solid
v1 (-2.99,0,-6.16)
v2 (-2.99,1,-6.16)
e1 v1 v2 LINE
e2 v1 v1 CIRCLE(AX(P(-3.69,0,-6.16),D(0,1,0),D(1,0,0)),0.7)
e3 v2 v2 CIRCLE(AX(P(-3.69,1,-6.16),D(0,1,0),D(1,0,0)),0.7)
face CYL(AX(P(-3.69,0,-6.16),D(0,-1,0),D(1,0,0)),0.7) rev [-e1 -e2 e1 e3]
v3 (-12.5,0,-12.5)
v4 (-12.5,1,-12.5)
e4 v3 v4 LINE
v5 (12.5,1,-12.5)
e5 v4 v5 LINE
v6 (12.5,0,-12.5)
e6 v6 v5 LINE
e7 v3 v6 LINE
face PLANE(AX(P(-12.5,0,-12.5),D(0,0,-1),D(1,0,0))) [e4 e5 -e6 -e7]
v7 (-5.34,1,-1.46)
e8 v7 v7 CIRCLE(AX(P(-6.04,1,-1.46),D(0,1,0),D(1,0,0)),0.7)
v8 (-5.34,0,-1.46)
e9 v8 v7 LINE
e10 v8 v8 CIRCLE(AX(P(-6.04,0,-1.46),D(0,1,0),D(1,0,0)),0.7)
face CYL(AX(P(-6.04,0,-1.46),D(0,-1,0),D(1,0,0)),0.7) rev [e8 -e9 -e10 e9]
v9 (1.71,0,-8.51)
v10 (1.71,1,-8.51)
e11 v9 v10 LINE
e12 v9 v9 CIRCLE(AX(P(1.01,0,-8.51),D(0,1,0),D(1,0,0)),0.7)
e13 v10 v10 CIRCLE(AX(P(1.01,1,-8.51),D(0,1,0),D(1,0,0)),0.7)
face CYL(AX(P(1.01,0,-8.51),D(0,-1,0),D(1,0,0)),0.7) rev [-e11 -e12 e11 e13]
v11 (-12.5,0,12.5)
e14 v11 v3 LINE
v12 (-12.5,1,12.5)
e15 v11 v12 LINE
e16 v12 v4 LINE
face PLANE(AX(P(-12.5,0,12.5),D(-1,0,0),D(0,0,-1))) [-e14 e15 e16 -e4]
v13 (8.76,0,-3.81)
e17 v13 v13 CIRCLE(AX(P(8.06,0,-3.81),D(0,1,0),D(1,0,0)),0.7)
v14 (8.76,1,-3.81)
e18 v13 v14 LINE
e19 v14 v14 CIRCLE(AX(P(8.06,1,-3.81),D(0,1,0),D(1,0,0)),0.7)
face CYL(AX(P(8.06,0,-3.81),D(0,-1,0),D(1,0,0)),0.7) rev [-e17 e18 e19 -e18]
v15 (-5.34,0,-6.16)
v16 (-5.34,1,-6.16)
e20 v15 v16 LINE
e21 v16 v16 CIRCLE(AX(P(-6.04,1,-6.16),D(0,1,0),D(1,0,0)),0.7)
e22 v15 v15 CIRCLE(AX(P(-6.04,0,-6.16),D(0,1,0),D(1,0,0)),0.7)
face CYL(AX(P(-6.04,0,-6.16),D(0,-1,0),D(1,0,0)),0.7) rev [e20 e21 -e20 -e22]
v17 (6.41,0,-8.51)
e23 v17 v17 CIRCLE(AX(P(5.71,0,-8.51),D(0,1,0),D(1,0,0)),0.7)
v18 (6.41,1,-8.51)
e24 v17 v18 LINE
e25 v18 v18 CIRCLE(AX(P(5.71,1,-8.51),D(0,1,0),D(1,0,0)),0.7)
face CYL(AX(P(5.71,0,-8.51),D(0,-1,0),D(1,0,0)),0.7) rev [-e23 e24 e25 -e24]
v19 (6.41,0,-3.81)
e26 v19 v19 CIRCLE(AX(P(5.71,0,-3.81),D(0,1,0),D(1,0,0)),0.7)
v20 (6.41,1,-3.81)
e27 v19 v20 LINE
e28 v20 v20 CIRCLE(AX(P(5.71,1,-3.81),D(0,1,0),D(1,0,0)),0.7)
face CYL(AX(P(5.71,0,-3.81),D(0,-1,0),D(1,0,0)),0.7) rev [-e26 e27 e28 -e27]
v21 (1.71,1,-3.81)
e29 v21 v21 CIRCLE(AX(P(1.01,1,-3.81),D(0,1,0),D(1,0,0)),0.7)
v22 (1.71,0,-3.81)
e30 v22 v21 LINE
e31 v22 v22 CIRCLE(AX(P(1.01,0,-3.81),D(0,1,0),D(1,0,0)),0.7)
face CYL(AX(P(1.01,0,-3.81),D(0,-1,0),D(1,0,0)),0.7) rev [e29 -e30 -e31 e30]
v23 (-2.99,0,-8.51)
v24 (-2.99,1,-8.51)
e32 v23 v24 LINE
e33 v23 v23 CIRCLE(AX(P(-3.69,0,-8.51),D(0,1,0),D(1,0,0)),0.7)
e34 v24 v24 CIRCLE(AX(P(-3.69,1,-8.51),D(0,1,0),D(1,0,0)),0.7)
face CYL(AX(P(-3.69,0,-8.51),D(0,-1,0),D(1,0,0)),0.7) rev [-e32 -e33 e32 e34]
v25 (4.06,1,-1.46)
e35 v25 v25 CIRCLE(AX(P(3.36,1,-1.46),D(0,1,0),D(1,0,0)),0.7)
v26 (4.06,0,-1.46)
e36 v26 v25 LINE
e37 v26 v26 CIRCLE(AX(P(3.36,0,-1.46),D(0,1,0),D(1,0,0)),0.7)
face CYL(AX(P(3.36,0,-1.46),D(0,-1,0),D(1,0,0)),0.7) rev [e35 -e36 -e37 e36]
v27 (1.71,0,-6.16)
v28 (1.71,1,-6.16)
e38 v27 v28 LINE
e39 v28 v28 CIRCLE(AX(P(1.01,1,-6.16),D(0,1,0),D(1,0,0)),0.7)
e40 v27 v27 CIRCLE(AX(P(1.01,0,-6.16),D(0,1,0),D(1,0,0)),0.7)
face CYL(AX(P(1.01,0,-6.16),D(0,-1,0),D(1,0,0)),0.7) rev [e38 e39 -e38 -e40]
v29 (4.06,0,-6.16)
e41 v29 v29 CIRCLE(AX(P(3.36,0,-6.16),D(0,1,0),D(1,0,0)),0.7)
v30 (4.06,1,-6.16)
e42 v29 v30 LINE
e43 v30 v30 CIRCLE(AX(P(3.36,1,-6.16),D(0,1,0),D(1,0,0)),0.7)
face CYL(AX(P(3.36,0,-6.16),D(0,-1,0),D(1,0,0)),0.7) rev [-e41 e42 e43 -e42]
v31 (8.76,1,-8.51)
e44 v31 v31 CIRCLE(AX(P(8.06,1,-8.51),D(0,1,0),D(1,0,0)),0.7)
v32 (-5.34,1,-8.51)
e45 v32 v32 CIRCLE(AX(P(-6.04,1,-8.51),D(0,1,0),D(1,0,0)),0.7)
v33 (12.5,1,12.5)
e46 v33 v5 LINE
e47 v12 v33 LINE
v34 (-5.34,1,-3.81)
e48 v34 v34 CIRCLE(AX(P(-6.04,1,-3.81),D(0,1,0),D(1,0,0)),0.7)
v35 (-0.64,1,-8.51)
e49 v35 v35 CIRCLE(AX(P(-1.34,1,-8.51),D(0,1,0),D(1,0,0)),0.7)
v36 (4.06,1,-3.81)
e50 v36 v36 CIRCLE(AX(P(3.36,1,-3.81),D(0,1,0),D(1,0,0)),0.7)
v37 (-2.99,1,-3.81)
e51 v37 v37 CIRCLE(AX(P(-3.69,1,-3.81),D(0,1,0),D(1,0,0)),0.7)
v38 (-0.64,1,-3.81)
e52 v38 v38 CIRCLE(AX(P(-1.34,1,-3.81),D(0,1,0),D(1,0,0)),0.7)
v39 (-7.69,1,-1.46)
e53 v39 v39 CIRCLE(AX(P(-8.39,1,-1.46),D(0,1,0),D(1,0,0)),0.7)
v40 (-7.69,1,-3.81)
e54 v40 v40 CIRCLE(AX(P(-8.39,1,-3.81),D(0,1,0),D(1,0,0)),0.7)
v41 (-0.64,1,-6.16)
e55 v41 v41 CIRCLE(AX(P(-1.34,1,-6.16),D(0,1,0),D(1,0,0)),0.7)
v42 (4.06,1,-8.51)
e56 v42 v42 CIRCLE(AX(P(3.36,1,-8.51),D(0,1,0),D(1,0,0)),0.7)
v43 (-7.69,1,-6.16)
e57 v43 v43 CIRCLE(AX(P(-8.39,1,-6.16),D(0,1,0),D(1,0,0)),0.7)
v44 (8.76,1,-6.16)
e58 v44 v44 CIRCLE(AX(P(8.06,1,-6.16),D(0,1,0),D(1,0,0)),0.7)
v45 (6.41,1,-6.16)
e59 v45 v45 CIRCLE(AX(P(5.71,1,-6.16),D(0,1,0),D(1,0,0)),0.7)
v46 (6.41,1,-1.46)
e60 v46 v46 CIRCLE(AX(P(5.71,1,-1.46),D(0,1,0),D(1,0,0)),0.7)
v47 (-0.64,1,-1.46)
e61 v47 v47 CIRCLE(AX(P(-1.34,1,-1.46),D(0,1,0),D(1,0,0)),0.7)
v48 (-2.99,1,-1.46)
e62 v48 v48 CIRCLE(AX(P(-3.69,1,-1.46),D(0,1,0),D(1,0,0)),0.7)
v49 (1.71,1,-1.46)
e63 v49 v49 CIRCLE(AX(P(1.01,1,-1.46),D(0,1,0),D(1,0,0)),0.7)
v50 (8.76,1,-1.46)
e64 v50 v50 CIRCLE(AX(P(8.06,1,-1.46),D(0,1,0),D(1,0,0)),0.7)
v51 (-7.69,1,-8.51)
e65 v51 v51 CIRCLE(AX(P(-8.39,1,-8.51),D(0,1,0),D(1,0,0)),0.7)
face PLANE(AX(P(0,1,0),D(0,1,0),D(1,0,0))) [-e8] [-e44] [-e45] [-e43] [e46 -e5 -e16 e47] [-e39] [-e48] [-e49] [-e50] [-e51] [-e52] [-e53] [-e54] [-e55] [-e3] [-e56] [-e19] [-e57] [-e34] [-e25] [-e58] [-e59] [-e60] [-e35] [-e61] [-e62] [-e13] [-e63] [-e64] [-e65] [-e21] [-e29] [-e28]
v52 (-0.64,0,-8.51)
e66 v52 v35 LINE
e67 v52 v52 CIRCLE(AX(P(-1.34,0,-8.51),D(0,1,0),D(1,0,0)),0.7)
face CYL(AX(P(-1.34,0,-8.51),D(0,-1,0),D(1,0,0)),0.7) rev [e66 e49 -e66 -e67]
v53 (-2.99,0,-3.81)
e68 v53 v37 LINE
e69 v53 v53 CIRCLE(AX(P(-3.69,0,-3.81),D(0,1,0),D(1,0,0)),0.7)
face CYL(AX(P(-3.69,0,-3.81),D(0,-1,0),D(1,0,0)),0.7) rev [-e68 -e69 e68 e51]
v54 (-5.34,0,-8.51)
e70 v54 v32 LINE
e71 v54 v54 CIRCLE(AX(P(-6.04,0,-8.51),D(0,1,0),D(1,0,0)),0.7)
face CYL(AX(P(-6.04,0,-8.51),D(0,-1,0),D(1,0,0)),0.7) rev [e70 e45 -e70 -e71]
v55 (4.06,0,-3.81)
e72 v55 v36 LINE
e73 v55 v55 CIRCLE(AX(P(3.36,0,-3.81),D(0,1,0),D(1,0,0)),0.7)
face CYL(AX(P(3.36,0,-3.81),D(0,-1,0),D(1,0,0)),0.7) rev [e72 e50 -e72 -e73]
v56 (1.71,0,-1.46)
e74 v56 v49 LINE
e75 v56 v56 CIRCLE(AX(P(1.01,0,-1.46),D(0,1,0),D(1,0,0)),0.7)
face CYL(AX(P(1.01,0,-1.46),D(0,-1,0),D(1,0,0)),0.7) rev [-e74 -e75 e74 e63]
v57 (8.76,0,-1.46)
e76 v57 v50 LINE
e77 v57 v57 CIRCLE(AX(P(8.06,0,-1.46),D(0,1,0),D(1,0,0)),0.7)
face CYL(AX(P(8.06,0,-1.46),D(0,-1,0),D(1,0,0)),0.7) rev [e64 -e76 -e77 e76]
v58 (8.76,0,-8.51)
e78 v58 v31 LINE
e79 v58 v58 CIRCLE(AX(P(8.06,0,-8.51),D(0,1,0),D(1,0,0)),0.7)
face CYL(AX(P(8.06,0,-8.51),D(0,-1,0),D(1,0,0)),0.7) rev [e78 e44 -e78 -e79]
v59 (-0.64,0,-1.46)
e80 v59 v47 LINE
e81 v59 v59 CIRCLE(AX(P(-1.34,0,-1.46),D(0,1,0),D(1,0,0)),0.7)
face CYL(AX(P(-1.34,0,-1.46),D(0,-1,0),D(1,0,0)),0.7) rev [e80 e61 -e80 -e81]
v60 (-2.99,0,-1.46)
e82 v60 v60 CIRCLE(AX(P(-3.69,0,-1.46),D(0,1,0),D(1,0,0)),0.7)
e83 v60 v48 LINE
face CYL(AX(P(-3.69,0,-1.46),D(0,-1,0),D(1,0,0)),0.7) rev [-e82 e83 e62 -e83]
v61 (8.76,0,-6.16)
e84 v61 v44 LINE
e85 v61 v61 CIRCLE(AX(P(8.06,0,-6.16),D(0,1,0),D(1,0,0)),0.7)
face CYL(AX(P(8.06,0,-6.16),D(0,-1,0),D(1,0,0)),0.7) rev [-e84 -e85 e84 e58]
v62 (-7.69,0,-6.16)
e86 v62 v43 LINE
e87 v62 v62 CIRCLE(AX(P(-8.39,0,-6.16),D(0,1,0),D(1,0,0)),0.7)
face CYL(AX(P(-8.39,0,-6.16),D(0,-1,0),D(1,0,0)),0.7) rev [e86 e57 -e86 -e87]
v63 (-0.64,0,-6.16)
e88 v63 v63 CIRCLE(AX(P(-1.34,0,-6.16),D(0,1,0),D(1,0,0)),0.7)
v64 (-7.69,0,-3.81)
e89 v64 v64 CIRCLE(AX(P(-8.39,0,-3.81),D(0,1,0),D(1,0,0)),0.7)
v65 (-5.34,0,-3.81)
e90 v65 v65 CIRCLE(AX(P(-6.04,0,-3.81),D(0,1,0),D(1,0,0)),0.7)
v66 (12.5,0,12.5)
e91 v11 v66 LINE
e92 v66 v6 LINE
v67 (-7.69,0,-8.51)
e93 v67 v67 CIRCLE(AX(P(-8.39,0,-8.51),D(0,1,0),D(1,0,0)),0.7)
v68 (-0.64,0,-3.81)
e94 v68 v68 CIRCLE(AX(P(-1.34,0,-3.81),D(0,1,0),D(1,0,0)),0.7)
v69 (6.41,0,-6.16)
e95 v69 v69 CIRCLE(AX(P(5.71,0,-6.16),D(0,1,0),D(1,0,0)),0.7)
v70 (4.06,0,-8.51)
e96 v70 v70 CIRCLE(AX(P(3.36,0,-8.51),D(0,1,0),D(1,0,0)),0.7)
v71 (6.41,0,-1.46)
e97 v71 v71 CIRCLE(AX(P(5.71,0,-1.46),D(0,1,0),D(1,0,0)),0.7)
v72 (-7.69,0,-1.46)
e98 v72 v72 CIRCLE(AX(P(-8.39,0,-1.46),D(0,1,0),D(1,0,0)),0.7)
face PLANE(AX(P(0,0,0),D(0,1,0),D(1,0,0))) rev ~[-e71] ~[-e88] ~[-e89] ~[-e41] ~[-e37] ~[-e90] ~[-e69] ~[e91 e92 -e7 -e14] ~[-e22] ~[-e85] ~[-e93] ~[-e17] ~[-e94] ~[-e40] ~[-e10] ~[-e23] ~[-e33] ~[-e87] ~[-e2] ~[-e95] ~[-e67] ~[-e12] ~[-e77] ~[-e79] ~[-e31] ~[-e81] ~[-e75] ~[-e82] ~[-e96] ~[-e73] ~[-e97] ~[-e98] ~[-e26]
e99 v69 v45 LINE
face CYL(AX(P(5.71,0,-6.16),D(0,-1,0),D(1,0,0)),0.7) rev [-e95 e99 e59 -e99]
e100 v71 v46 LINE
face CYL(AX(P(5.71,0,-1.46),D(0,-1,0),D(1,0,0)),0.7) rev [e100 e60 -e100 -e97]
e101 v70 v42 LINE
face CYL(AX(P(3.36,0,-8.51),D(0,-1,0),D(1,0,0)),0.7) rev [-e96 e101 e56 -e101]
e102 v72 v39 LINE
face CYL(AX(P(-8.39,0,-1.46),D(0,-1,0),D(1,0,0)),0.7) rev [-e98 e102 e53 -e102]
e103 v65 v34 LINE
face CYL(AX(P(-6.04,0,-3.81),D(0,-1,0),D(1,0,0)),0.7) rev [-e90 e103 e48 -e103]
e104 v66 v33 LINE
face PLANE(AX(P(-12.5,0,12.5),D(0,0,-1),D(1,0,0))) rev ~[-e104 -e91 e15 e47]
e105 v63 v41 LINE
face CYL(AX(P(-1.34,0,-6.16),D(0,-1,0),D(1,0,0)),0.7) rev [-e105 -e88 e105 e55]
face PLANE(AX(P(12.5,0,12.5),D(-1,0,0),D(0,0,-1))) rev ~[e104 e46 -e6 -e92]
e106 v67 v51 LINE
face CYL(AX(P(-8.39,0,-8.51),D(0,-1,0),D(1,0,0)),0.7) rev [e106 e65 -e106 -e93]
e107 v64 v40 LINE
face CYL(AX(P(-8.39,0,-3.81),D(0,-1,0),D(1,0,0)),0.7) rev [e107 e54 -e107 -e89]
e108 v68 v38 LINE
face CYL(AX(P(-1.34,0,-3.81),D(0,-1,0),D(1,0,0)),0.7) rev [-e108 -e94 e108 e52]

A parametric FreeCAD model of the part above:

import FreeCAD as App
import Part
import Sketcher
Q = App.Units.Quantity


def add_polygon(sketch, points):
    """Adds a closed chain of lines whose ends are joined by coincident constraints."""
    first, n = sketch.GeometryCount, len(points)
    for a, b in zip(points, points[1:] + points[:1]):
        sketch.addGeometry(Part.LineSegment(App.Vector(*a, 0), App.Vector(*b, 0)), False)
    for i in range(n):
        sketch.addConstraint(Sketcher.Constraint("Coincident", first + i, 2, first + (i + 1) % n, 1))

doc = App.newDocument("Part")
body = doc.addObject("PartDesign::Body", "Body")

# Sketch on XZ plane
sketch1 = body.newObject("Sketcher::SketchObject", "Sketch")
sketch1.AttachmentSupport = (doc.getObject("XZ_Plane"), [""])
sketch1.MapMode = "FlatFace"
add_polygon(sketch1, [(-12.5, -12.5), (-12.5, 12.5), (12.5, 12.5), (12.5, -12.5)])  # lines 0-3
sketch1.addGeometry(Part.Circle(App.Vector(-8.4, -1.5, 0), App.Vector(0, 0, 1), 0.7), False)  # 4
sketch1.addGeometry(Part.Circle(App.Vector(-6, -1.5, 0), App.Vector(0, 0, 1), 0.7), False)  # 5
sketch1.addGeometry(Part.Circle(App.Vector(-3.7, -1.5, 0), App.Vector(0, 0, 1), 0.7), False)  # 6
sketch1.addGeometry(Part.Circle(App.Vector(-1.3, -1.5, 0), App.Vector(0, 0, 1), 0.7), False)  # 7
sketch1.addGeometry(Part.Circle(App.Vector(-8.4, -3.8, 0), App.Vector(0, 0, 1), 0.7), False)  # 8
sketch1.addGeometry(Part.Circle(App.Vector(-6, -3.8, 0), App.Vector(0, 0, 1), 0.7), False)  # 9
sketch1.addGeometry(Part.Circle(App.Vector(-3.7, -3.8, 0), App.Vector(0, 0, 1), 0.7), False)  # 10
sketch1.addGeometry(Part.Circle(App.Vector(-1.3, -3.8, 0), App.Vector(0, 0, 1), 0.7), False)  # 11
sketch1.addGeometry(Part.Circle(App.Vector(1, -1.5, 0), App.Vector(0, 0, 1), 0.7), False)  # 12
sketch1.addGeometry(Part.Circle(App.Vector(3.4, -1.5, 0), App.Vector(0, 0, 1), 0.7), False)  # 13
sketch1.addGeometry(Part.Circle(App.Vector(5.7, -1.5, 0), App.Vector(0, 0, 1), 0.7), False)  # 14
sketch1.addGeometry(Part.Circle(App.Vector(8.1, -1.5, 0), App.Vector(0, 0, 1), 0.7), False)  # 15
sketch1.addGeometry(Part.Circle(App.Vector(1, -3.8, 0), App.Vector(0, 0, 1), 0.7), False)  # 16
sketch1.addGeometry(Part.Circle(App.Vector(3.4, -3.8, 0), App.Vector(0, 0, 1), 0.7), False)  # 17
sketch1.addGeometry(Part.Circle(App.Vector(5.7, -3.8, 0), App.Vector(0, 0, 1), 0.7), False)  # 18
sketch1.addGeometry(Part.Circle(App.Vector(8.1, -3.8, 0), App.Vector(0, 0, 1), 0.7), False)  # 19
sketch1.addGeometry(Part.Circle(App.Vector(-8.4, -6.2, 0), App.Vector(0, 0, 1), 0.7), False)  # 20
sketch1.addGeometry(Part.Circle(App.Vector(-6, -6.2, 0), App.Vector(0, 0, 1), 0.7), False)  # 21
sketch1.addGeometry(Part.Circle(App.Vector(-3.7, -6.2, 0), App.Vector(0, 0, 1), 0.7), False)  # 22
sketch1.addGeometry(Part.Circle(App.Vector(-1.3, -6.2, 0), App.Vector(0, 0, 1), 0.7), False)  # 23
sketch1.addGeometry(Part.Circle(App.Vector(-8.4, -8.5, 0), App.Vector(0, 0, 1), 0.7), False)  # 24
sketch1.addGeometry(Part.Circle(App.Vector(-6, -8.5, 0), App.Vector(0, 0, 1), 0.7), False)  # 25
sketch1.addGeometry(Part.Circle(App.Vector(-3.7, -8.5, 0), App.Vector(0, 0, 1), 0.7), False)  # 26
sketch1.addGeometry(Part.Circle(App.Vector(-1.3, -8.5, 0), App.Vector(0, 0, 1), 0.7), False)  # 27
sketch1.addGeometry(Part.Circle(App.Vector(1, -6.2, 0), App.Vector(0, 0, 1), 0.7), False)  # 28
sketch1.addGeometry(Part.Circle(App.Vector(3.4, -6.2, 0), App.Vector(0, 0, 1), 0.7), False)  # 29
sketch1.addGeometry(Part.Circle(App.Vector(5.7, -6.2, 0), App.Vector(0, 0, 1), 0.7), False)  # 30
sketch1.addGeometry(Part.Circle(App.Vector(8.1, -6.2, 0), App.Vector(0, 0, 1), 0.7), False)  # 31
sketch1.addGeometry(Part.Circle(App.Vector(1, -8.5, 0), App.Vector(0, 0, 1), 0.7), False)  # 32
sketch1.addGeometry(Part.Circle(App.Vector(3.4, -8.5, 0), App.Vector(0, 0, 1), 0.7), False)  # 33
sketch1.addGeometry(Part.Circle(App.Vector(5.7, -8.5, 0), App.Vector(0, 0, 1), 0.7), False)  # 34
sketch1.addGeometry(Part.Circle(App.Vector(8.1, -8.5, 0), App.Vector(0, 0, 1), 0.7), False)  # 35
sketch1.addConstraint(Sketcher.Constraint("Vertical", 0))
sketch1.addConstraint(Sketcher.Constraint("Horizontal", 1))
sketch1.addConstraint(Sketcher.Constraint("Vertical", 2))
sketch1.addConstraint(Sketcher.Constraint("Horizontal", 3))
sketch1.addConstraint(Sketcher.Constraint("Equal", 4, 5))
sketch1.addConstraint(Sketcher.Constraint("Equal", 5, 6))
sketch1.addConstraint(Sketcher.Constraint("Equal", 6, 7))
sketch1.addConstraint(Sketcher.Constraint("Equal", 7, 8))
sketch1.addConstraint(Sketcher.Constraint("Equal", 8, 9))
sketch1.addConstraint(Sketcher.Constraint("Equal", 9, 10))
sketch1.addConstraint(Sketcher.Constraint("Equal", 10, 11))
sketch1.addConstraint(Sketcher.Constraint("Equal", 11, 12))
sketch1.addConstraint(Sketcher.Constraint("Equal", 12, 13))
sketch1.addConstraint(Sketcher.Constraint("Equal", 13, 14))
sketch1.addConstraint(Sketcher.Constraint("Equal", 14, 15))
sketch1.addConstraint(Sketcher.Constraint("Equal", 15, 16))
sketch1.addConstraint(Sketcher.Constraint("Equal", 16, 17))
sketch1.addConstraint(Sketcher.Constraint("Equal", 17, 18))
sketch1.addConstraint(Sketcher.Constraint("Equal", 18, 19))
sketch1.addConstraint(Sketcher.Constraint("Equal", 19, 20))
sketch1.addConstraint(Sketcher.Constraint("Equal", 20, 21))
sketch1.addConstraint(Sketcher.Constraint("Equal", 21, 22))
sketch1.addConstraint(Sketcher.Constraint("Equal", 22, 23))
sketch1.addConstraint(Sketcher.Constraint("Equal", 23, 24))
sketch1.addConstraint(Sketcher.Constraint("Equal", 24, 25))
sketch1.addConstraint(Sketcher.Constraint("Equal", 25, 26))
sketch1.addConstraint(Sketcher.Constraint("Equal", 26, 27))
sketch1.addConstraint(Sketcher.Constraint("Equal", 27, 28))
sketch1.addConstraint(Sketcher.Constraint("Equal", 28, 29))
sketch1.addConstraint(Sketcher.Constraint("Equal", 29, 30))
sketch1.addConstraint(Sketcher.Constraint("Equal", 30, 31))
sketch1.addConstraint(Sketcher.Constraint("Equal", 31, 32))
sketch1.addConstraint(Sketcher.Constraint("Equal", 32, 33))
sketch1.addConstraint(Sketcher.Constraint("Equal", 33, 34))
sketch1.addConstraint(Sketcher.Constraint("Equal", 34, 35))
sketch1.addConstraint(Sketcher.Constraint("Symmetric", 0, 2, 2, 2, -1, 1))
sketch1.addConstraint(Sketcher.Constraint("Horizontal", 4, 3, 5, 3))
sketch1.addConstraint(Sketcher.Constraint("Horizontal", 5, 3, 6, 3))
sketch1.addConstraint(Sketcher.Constraint("Horizontal", 6, 3, 7, 3))
sketch1.addConstraint(Sketcher.Constraint("Horizontal", 8, 3, 9, 3))
sketch1.addConstraint(Sketcher.Constraint("Horizontal", 9, 3, 10, 3))
sketch1.addConstraint(Sketcher.Constraint("Horizontal", 10, 3, 11, 3))
sketch1.addConstraint(Sketcher.Constraint("Horizontal", 7, 3, 12, 3))
sketch1.addConstraint(Sketcher.Constraint("Horizontal", 12, 3, 13, 3))
sketch1.addConstraint(Sketcher.Constraint("Horizontal", 13, 3, 14, 3))
sketch1.addConstraint(Sketcher.Constraint("Horizontal", 14, 3, 15, 3))
sketch1.addConstraint(Sketcher.Constraint("Horizontal", 11, 3, 16, 3))
sketch1.addConstraint(Sketcher.Constraint("Horizontal", 16, 3, 17, 3))
sketch1.addConstraint(Sketcher.Constraint("Horizontal", 17, 3, 18, 3))
sketch1.addConstraint(Sketcher.Constraint("Horizontal", 18, 3, 19, 3))
sketch1.addConstraint(Sketcher.Constraint("Horizontal", 20, 3, 21, 3))
sketch1.addConstraint(Sketcher.Constraint("Horizontal", 21, 3, 22, 3))
sketch1.addConstraint(Sketcher.Constraint("Horizontal", 22, 3, 23, 3))
sketch1.addConstraint(Sketcher.Constraint("Horizontal", 24, 3, 25, 3))
sketch1.addConstraint(Sketcher.Constraint("Horizontal", 25, 3, 26, 3))
sketch1.addConstraint(Sketcher.Constraint("Horizontal", 26, 3, 27, 3))
sketch1.addConstraint(Sketcher.Constraint("Horizontal", 23, 3, 28, 3))
sketch1.addConstraint(Sketcher.Constraint("Horizontal", 28, 3, 29, 3))
sketch1.addConstraint(Sketcher.Constraint("Horizontal", 29, 3, 30, 3))
sketch1.addConstraint(Sketcher.Constraint("Horizontal", 30, 3, 31, 3))
sketch1.addConstraint(Sketcher.Constraint("Horizontal", 27, 3, 32, 3))
sketch1.addConstraint(Sketcher.Constraint("Horizontal", 32, 3, 33, 3))
sketch1.addConstraint(Sketcher.Constraint("Horizontal", 33, 3, 34, 3))
sketch1.addConstraint(Sketcher.Constraint("Horizontal", 34, 3, 35, 3))
sketch1.addConstraint(Sketcher.Constraint("Vertical", 4, 3, 8, 3))
sketch1.addConstraint(Sketcher.Constraint("Vertical", 5, 3, 9, 3))
sketch1.addConstraint(Sketcher.Constraint("Vertical", 6, 3, 10, 3))
sketch1.addConstraint(Sketcher.Constraint("Vertical", 7, 3, 11, 3))
sketch1.addConstraint(Sketcher.Constraint("Vertical", 12, 3, 16, 3))
sketch1.addConstraint(Sketcher.Constraint("Vertical", 13, 3, 17, 3))
sketch1.addConstraint(Sketcher.Constraint("Vertical", 14, 3, 18, 3))
sketch1.addConstraint(Sketcher.Constraint("Vertical", 15, 3, 19, 3))
sketch1.addConstraint(Sketcher.Constraint("Vertical", 8, 3, 20, 3))
sketch1.addConstraint(Sketcher.Constraint("Vertical", 9, 3, 21, 3))
sketch1.addConstraint(Sketcher.Constraint("Vertical", 10, 3, 22, 3))
sketch1.addConstraint(Sketcher.Constraint("Vertical", 11, 3, 23, 3))
sketch1.addConstraint(Sketcher.Constraint("Vertical", 20, 3, 24, 3))
sketch1.addConstraint(Sketcher.Constraint("Vertical", 21, 3, 25, 3))
sketch1.addConstraint(Sketcher.Constraint("Vertical", 22, 3, 26, 3))
sketch1.addConstraint(Sketcher.Constraint("Vertical", 23, 3, 27, 3))
sketch1.addConstraint(Sketcher.Constraint("Vertical", 16, 3, 28, 3))
sketch1.addConstraint(Sketcher.Constraint("Vertical", 17, 3, 29, 3))
sketch1.addConstraint(Sketcher.Constraint("Vertical", 18, 3, 30, 3))
sketch1.addConstraint(Sketcher.Constraint("Vertical", 19, 3, 31, 3))
sketch1.addConstraint(Sketcher.Constraint("Vertical", 28, 3, 32, 3))
sketch1.addConstraint(Sketcher.Constraint("Vertical", 29, 3, 33, 3))
sketch1.addConstraint(Sketcher.Constraint("Vertical", 30, 3, 34, 3))
sketch1.addConstraint(Sketcher.Constraint("Vertical", 31, 3, 35, 3))
sketch1.addConstraint(Sketcher.Constraint("Equal", 3, 0))
sketch1.addConstraint(Sketcher.Constraint("Diameter", 4, Q("1.4 mm")))
sketch1.addConstraint(Sketcher.Constraint("DistanceX", 1, 1, 1, 2, Q("25 mm")))
sketch1.addConstraint(Sketcher.Constraint("DistanceX", 4, 3, 6, 3, Q("4.7 mm")))
sketch1.addConstraint(Sketcher.Constraint("DistanceX", 5, 3, 7, 3, Q("4.7 mm")))
sketch1.addConstraint(Sketcher.Constraint("DistanceX", 6, 3, 12, 3, Q("4.7 mm")))
sketch1.addConstraint(Sketcher.Constraint("DistanceX", 7, 3, 13, 3, Q("4.7 mm")))
sketch1.addConstraint(Sketcher.Constraint("DistanceX", 12, 3, 14, 3, Q("4.7 mm")))
sketch1.addConstraint(Sketcher.Constraint("DistanceX", 13, 3, 15, 3, Q("4.7 mm")))
sketch1.addConstraint(Sketcher.Constraint("DistanceY", 20, 3, 4, 3, Q("4.7 mm")))
sketch1.addConstraint(Sketcher.Constraint("DistanceY", 24, 3, 8, 3, Q("4.7 mm")))
sketch1.addConstraint(Sketcher.Constraint("DistanceX", 4, 3, -1, 1, Q("8.39 mm")))
sketch1.addConstraint(Sketcher.Constraint("DistanceY", 4, 3, -1, 1, Q("1.46 mm")))
sketch1.addConstraint(Sketcher.Constraint("DistanceX", 5, 3, -1, 1, Q("6.04 mm")))
sketch1.addConstraint(Sketcher.Constraint("DistanceY", 8, 3, -1, 1, Q("3.81 mm")))
pad1 = body.newObject("PartDesign::Pad", "Pad")
pad1.Profile = sketch1
pad1.Length = 1
pad1.Reversed = True

doc.recompute()
